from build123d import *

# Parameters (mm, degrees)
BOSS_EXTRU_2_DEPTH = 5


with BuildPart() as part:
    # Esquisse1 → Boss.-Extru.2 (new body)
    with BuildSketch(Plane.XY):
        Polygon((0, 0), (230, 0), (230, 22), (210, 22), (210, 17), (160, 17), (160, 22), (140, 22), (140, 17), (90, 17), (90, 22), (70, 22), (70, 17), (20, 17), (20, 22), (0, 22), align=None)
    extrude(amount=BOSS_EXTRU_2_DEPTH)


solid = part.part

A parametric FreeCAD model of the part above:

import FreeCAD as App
import Part
import Sketcher
from FreeCAD import Vector
Q = App.Units.Quantity

doc = App.newDocument("Part")
body = doc.addObject("PartDesign::Body", "Body")

# Sketch on XY plane
sketch1 = doc.addObject("Sketcher::SketchObject", "Sketch")
body.addObject(sketch1)
sketch1.AttachmentSupport = (doc.XY_Plane, [""])
sketch1.MapMode = "FlatFace"
sketch1.addGeometry(Part.LineSegment(Vector(0, 0, 0), Vector(230, 0, 0)), False)
sketch1.addGeometry(Part.LineSegment(Vector(230, 0, 0), Vector(230, 22, 0)), False)
sketch1.addGeometry(Part.LineSegment(Vector(230, 22, 0), Vector(210, 22, 0)), False)
sketch1.addGeometry(Part.LineSegment(Vector(210, 22, 0), Vector(210, 17, 0)), False)
sketch1.addGeometry(Part.LineSegment(Vector(210, 17, 0), Vector(160, 17, 0)), False)
sketch1.addGeometry(Part.LineSegment(Vector(160, 17, 0), Vector(160, 22, 0)), False)
sketch1.addGeometry(Part.LineSegment(Vector(160, 22, 0), Vector(140, 22, 0)), False)
sketch1.addGeometry(Part.LineSegment(Vector(140, 22, 0), Vector(140, 17, 0)), False)
sketch1.addGeometry(Part.LineSegment(Vector(140, 17, 0), Vector(90, 17, 0)), False)
sketch1.addGeometry(Part.LineSegment(Vector(90, 17, 0), Vector(90, 22, 0)), False)
sketch1.addGeometry(Part.LineSegment(Vector(90, 22, 0), Vector(70, 22, 0)), False)
sketch1.addGeometry(Part.LineSegment(Vector(70, 22, 0), Vector(70, 17, 0)), False)
sketch1.addGeometry(Part.LineSegment(Vector(70, 17, 0), Vector(20, 17, 0)), False)
sketch1.addGeometry(Part.LineSegment(Vector(20, 17, 0), Vector(20, 22, 0)), False)
sketch1.addGeometry(Part.LineSegment(Vector(20, 22, 0), Vector(0, 22, 0)), False)
sketch1.addGeometry(Part.LineSegment(Vector(0, 22, 0), Vector(0, 0, 0)), False)
sketch1.addConstraint(Sketcher.Constraint("Coincident", 0, 2, 1, 1))
sketch1.addConstraint(Sketcher.Constraint("Coincident", 1, 2, 2, 1))
sketch1.addConstraint(Sketcher.Constraint("Coincident", 2, 2, 3, 1))
sketch1.addConstraint(Sketcher.Constraint("Coincident", 3, 2, 4, 1))
sketch1.addConstraint(Sketcher.Constraint("Coincident", 4, 2, 5, 1))
sketch1.addConstraint(Sketcher.Constraint("Coincident", 5, 2, 6, 1))
sketch1.addConstraint(Sketcher.Constraint("Coincident", 6, 2, 7, 1))
sketch1.addConstraint(Sketcher.Constraint("Coincident", 7, 2, 8, 1))
sketch1.addConstraint(Sketcher.Constraint("Coincident", 8, 2, 9, 1))
sketch1.addConstraint(Sketcher.Constraint("Coincident", 9, 2, 10, 1))
sketch1.addConstraint(Sketcher.Constraint("Coincident", 10, 2, 11, 1))
sketch1.addConstraint(Sketcher.Constraint("Coincident", 11, 2, 12, 1))
sketch1.addConstraint(Sketcher.Constraint("Coincident", 12, 2, 13, 1))
sketch1.addConstraint(Sketcher.Constraint("Coincident", 13, 2, 14, 1))
sketch1.addConstraint(Sketcher.Constraint("Coincident", 14, 2, 15, 1))
sketch1.addConstraint(Sketcher.Constraint("Coincident", 15, 2, 0, 1))
sketch1.addConstraint(Sketcher.Constraint("Horizontal", 0))
sketch1.addConstraint(Sketcher.Constraint("Vertical", 1))
sketch1.addConstraint(Sketcher.Constraint("Horizontal", 2))
sketch1.addConstraint(Sketcher.Constraint("Vertical", 3))
sketch1.addConstraint(Sketcher.Constraint("Horizontal", 4))
sketch1.addConstraint(Sketcher.Constraint("Vertical", 5))
sketch1.addConstraint(Sketcher.Constraint("Horizontal", 6))
sketch1.addConstraint(Sketcher.Constraint("Vertical", 7))
sketch1.addConstraint(Sketcher.Constraint("Horizontal", 8))
sketch1.addConstraint(Sketcher.Constraint("Vertical", 9))
sketch1.addConstraint(Sketcher.Constraint("Horizontal", 10))
sketch1.addConstraint(Sketcher.Constraint("Vertical", 11))
sketch1.addConstraint(Sketcher.Constraint("Horizontal", 12))
sketch1.addConstraint(Sketcher.Constraint("Vertical", 13))
sketch1.addConstraint(Sketcher.Constraint("Horizontal", 14))
sketch1.addConstraint(Sketcher.Constraint("Vertical", 15))
sketch1.addConstraint(Sketcher.Constraint("Coincident", 15, 2, -1, 1))
sketch1.addConstraint(Sketcher.Constraint("Horizontal", 2, 2, 5, 2))
sketch1.addConstraint(Sketcher.Constraint("Horizontal", 4, 2, 7, 2))
sketch1.addConstraint(Sketcher.Constraint("Horizontal", 6, 2, 9, 2))
sketch1.addConstraint(Sketcher.Constraint("Horizontal", 8, 2, 11, 2))
sketch1.addConstraint(Sketcher.Constraint("Horizontal", 10, 2, 13, 2))
sketch1.addConstraint(Sketcher.Constraint("Equal", 2, 6))
sketch1.addConstraint(Sketcher.Constraint("Equal", 4, 8))
sketch1.addConstraint(Sketcher.Constraint("Equal", 6, 10))
sketch1.addConstraint(Sketcher.Constraint("Equal", 8, 12))
sketch1.addConstraint(Sketcher.Constraint("Equal", 10, 14))
sketch1.addConstraint(Sketcher.Constraint("DistanceX", 0, 1, 0, 2, Q("230 mm")))
sketch1.addConstraint(Sketcher.Constraint("DistanceX", 2, 2, 2, 1, Q("20 mm")))
sketch1.addConstraint(Sketcher.Constraint("DistanceY", 1, 1, 1, 2, Q("22 mm")))
sketch1.addConstraint(Sketcher.Constraint("DistanceY", 3, 2, 3, 1, Q("5 mm")))
pad1 = doc.addObject("PartDesign::Pad", "Pad")
body.addObject(pad1)
pad1.Profile = sketch1
pad1.Length = 5

doc.recompute()
